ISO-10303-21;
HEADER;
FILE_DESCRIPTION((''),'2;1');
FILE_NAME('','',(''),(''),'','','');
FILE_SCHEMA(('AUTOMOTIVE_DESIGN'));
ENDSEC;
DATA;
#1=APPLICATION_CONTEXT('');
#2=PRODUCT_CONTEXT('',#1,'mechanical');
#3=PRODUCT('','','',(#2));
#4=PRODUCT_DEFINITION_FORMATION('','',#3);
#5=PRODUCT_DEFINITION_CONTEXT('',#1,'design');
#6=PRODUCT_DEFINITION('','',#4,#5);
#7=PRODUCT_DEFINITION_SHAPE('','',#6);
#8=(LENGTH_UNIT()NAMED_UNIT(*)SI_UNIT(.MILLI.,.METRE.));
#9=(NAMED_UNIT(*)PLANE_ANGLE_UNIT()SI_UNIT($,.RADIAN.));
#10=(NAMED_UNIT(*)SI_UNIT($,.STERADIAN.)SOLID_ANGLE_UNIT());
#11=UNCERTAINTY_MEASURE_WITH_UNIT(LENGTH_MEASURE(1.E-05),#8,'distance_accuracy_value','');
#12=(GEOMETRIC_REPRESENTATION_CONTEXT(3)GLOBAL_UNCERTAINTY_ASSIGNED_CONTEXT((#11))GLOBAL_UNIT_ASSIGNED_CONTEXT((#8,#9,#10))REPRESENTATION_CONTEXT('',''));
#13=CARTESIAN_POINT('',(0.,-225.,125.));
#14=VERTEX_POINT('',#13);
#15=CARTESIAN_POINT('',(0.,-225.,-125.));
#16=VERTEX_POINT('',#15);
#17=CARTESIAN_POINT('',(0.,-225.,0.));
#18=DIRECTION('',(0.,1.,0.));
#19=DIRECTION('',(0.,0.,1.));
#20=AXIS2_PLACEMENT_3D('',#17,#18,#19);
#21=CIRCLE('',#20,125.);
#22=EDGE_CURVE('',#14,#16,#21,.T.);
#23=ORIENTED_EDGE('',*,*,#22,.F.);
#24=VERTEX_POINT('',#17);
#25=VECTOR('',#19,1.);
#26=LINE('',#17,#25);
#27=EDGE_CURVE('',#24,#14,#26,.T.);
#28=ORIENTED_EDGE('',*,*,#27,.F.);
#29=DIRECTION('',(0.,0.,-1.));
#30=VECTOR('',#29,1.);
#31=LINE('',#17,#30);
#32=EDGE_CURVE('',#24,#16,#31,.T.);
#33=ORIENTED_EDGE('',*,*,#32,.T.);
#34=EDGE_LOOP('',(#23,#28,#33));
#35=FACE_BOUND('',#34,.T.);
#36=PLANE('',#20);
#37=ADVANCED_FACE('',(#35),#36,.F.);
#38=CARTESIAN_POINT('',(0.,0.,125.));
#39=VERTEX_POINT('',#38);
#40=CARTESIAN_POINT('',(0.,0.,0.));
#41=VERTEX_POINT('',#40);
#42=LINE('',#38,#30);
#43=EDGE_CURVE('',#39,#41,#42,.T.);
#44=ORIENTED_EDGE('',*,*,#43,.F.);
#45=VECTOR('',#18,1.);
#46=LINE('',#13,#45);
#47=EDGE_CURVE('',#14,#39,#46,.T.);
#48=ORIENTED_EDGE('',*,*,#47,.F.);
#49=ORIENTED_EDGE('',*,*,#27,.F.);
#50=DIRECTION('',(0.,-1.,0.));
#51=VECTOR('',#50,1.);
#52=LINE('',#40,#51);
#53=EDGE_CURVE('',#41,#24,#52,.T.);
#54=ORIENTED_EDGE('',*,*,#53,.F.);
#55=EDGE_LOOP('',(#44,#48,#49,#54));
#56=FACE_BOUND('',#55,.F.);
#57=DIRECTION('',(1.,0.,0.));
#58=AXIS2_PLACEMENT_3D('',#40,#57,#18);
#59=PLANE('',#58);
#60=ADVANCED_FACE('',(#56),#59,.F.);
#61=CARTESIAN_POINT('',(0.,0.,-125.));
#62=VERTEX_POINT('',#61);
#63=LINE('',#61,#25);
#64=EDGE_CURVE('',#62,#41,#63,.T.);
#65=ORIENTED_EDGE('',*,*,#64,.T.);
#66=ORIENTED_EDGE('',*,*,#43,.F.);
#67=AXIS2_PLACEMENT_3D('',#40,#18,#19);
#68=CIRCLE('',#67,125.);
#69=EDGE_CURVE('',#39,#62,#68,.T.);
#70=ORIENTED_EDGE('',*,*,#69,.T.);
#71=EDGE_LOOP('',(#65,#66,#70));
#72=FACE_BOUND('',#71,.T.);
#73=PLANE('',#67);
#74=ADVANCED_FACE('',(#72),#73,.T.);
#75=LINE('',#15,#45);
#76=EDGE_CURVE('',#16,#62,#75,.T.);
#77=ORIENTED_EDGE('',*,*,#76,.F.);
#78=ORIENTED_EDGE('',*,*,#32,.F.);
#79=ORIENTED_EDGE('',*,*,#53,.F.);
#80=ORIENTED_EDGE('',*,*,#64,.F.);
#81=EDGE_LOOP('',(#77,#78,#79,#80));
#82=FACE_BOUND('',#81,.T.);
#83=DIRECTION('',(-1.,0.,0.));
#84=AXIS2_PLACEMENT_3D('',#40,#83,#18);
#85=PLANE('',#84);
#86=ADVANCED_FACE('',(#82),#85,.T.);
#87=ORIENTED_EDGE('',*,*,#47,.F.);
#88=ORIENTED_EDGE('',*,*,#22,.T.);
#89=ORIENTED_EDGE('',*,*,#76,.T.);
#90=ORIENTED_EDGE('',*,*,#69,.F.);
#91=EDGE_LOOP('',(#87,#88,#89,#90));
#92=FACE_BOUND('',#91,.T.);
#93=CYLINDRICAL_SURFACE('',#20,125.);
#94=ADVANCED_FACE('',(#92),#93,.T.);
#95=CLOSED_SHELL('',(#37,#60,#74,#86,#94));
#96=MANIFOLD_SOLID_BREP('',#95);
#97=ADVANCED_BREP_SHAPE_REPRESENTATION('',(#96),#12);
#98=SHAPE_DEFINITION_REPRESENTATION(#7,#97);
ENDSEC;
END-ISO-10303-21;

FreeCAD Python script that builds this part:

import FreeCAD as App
import Part
import Sketcher
from FreeCAD import Vector
Q = App.Units.Quantity


def add_polygon(sketch, points):
    """Adds a closed chain of lines whose ends are joined by coincident constraints."""
    first, n = sketch.GeometryCount, len(points)
    for a, b in zip(points, points[1:] + points[:1]):
        sketch.addGeometry(Part.LineSegment(App.Vector(*a, 0), App.Vector(*b, 0)), False)
    for i in range(n):
        sketch.addConstraint(Sketcher.Constraint("Coincident", first + i, 2, first + (i + 1) % n, 1))

doc = App.newDocument("Part")
body = doc.addObject("PartDesign::Body", "Body")

sketch1 = body.newObject("Sketcher::SketchObject", "Sketch")
sketch1.AttachmentSupport = (doc.getObject("YZ_Plane"), [""])
sketch1.MapMode = "FlatFace"
add_polygon(sketch1, [(-225, 0), (0, 0), (0, 125), (-225, 125)])
sketch1.addConstraint(Sketcher.Constraint("Horizontal", 0))
sketch1.addConstraint(Sketcher.Constraint("Vertical", 1))
sketch1.addConstraint(Sketcher.Constraint("Horizontal", 2))
sketch1.addConstraint(Sketcher.Constraint("Vertical", 3))
sketch1.addConstraint(Sketcher.Constraint("Coincident", 0, 2, -1, 1))
sketch1.addConstraint(Sketcher.Constraint("DistanceX", 0, 1, 0, 2, Q("225 mm")))
sketch1.addConstraint(Sketcher.Constraint("DistanceY", 1, 1, 1, 2, Q("125 mm")))
revolution = body.newObject("PartDesign::Revolution", "Revolution")
revolution.Profile = sketch1
revolution.ReferenceAxis = (sketch1, ["H_Axis"])
revolution.Angle = 180

doc.recompute()
